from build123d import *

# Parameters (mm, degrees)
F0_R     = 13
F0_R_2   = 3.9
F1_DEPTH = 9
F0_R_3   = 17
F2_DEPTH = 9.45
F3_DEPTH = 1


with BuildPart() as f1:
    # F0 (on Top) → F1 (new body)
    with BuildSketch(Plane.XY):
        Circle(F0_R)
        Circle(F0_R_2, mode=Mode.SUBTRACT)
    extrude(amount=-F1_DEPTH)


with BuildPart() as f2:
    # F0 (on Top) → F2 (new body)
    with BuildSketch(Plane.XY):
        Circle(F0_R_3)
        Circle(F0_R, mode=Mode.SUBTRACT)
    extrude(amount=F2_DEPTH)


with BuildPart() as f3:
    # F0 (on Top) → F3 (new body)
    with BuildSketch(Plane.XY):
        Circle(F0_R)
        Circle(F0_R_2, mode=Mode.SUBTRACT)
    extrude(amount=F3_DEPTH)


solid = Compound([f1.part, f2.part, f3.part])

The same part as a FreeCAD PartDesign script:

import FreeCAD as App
import Part
import Sketcher
from FreeCAD import Vector
Q = App.Units.Quantity

doc = App.newDocument("Part")
body = doc.addObject("PartDesign::Body", "Body")

sketch1 = body.newObject("Sketcher::SketchObject", "Sketch")
sketch1.AttachmentSupport = (doc.getObject("XY_Plane"), [""])
sketch1.MapMode = "FlatFace"
sketch1.addGeometry([
    Part.Circle(Vector(0, 0, 0), Vector(0, 0, 1), 13),
    Part.Circle(Vector(0, 0, 0), Vector(0, 0, 1), 3.9),
], False)
sketch1.addConstraint([
    Sketcher.Constraint("Coincident", 0, 3, -1, 1),
    Sketcher.Constraint("Coincident", 1, 3, -1, 1),
    Sketcher.Constraint("Diameter", 0, Q("26 mm")),
    Sketcher.Constraint("Diameter", 1, Q("7.8 mm")),
])
pad1 = body.newObject("PartDesign::Pad", "Pad")
pad1.Profile = sketch1
pad1.Length = 9
pad1.Reversed = True
body2 = doc.addObject("PartDesign::Body", "Body001")

sketch2 = body2.newObject("Sketcher::SketchObject", "Sketch001")
sketch2.AttachmentSupport = (doc.getObject("XY_Plane001"), [""])
sketch2.MapMode = "FlatFace"
sketch2.addGeometry([
    Part.Circle(Vector(0, 0, 0), Vector(0, 0, 1), 17),
    Part.Circle(Vector(0, 0, 0), Vector(0, 0, 1), 13),
], False)
sketch2.addConstraint([
    Sketcher.Constraint("Coincident", 0, 3, -1, 1),
    Sketcher.Constraint("Coincident", 1, 3, -1, 1),
    Sketcher.Constraint("Diameter", 0, Q("34 mm")),
    Sketcher.Constraint("Diameter", 1, Q("26 mm")),
])
pad2 = body2.newObject("PartDesign::Pad", "Pad001")
pad2.Profile = sketch2
pad2.Length = 9.45
body3 = doc.addObject("PartDesign::Body", "Body002")

sketch3 = body3.newObject("Sketcher::SketchObject", "Sketch002")
sketch3.AttachmentSupport = (doc.getObject("XY_Plane002"), [""])
sketch3.MapMode = "FlatFace"
sketch3.addGeometry([
    Part.Circle(Vector(0, 0, 0), Vector(0, 0, 1), 13),
    Part.Circle(Vector(0, 0, 0), Vector(0, 0, 1), 3.9),
], False)
sketch3.addConstraint([
    Sketcher.Constraint("Coincident", 0, 3, -1, 1),
    Sketcher.Constraint("Coincident", 1, 3, -1, 1),
    Sketcher.Constraint("Diameter", 0, Q("26 mm")),
    Sketcher.Constraint("Diameter", 1, Q("7.8 mm")),
])
pad3 = body3.newObject("PartDesign::Pad", "Pad002")
pad3.Profile = sketch3
pad3.Length = 1

doc.recompute()
